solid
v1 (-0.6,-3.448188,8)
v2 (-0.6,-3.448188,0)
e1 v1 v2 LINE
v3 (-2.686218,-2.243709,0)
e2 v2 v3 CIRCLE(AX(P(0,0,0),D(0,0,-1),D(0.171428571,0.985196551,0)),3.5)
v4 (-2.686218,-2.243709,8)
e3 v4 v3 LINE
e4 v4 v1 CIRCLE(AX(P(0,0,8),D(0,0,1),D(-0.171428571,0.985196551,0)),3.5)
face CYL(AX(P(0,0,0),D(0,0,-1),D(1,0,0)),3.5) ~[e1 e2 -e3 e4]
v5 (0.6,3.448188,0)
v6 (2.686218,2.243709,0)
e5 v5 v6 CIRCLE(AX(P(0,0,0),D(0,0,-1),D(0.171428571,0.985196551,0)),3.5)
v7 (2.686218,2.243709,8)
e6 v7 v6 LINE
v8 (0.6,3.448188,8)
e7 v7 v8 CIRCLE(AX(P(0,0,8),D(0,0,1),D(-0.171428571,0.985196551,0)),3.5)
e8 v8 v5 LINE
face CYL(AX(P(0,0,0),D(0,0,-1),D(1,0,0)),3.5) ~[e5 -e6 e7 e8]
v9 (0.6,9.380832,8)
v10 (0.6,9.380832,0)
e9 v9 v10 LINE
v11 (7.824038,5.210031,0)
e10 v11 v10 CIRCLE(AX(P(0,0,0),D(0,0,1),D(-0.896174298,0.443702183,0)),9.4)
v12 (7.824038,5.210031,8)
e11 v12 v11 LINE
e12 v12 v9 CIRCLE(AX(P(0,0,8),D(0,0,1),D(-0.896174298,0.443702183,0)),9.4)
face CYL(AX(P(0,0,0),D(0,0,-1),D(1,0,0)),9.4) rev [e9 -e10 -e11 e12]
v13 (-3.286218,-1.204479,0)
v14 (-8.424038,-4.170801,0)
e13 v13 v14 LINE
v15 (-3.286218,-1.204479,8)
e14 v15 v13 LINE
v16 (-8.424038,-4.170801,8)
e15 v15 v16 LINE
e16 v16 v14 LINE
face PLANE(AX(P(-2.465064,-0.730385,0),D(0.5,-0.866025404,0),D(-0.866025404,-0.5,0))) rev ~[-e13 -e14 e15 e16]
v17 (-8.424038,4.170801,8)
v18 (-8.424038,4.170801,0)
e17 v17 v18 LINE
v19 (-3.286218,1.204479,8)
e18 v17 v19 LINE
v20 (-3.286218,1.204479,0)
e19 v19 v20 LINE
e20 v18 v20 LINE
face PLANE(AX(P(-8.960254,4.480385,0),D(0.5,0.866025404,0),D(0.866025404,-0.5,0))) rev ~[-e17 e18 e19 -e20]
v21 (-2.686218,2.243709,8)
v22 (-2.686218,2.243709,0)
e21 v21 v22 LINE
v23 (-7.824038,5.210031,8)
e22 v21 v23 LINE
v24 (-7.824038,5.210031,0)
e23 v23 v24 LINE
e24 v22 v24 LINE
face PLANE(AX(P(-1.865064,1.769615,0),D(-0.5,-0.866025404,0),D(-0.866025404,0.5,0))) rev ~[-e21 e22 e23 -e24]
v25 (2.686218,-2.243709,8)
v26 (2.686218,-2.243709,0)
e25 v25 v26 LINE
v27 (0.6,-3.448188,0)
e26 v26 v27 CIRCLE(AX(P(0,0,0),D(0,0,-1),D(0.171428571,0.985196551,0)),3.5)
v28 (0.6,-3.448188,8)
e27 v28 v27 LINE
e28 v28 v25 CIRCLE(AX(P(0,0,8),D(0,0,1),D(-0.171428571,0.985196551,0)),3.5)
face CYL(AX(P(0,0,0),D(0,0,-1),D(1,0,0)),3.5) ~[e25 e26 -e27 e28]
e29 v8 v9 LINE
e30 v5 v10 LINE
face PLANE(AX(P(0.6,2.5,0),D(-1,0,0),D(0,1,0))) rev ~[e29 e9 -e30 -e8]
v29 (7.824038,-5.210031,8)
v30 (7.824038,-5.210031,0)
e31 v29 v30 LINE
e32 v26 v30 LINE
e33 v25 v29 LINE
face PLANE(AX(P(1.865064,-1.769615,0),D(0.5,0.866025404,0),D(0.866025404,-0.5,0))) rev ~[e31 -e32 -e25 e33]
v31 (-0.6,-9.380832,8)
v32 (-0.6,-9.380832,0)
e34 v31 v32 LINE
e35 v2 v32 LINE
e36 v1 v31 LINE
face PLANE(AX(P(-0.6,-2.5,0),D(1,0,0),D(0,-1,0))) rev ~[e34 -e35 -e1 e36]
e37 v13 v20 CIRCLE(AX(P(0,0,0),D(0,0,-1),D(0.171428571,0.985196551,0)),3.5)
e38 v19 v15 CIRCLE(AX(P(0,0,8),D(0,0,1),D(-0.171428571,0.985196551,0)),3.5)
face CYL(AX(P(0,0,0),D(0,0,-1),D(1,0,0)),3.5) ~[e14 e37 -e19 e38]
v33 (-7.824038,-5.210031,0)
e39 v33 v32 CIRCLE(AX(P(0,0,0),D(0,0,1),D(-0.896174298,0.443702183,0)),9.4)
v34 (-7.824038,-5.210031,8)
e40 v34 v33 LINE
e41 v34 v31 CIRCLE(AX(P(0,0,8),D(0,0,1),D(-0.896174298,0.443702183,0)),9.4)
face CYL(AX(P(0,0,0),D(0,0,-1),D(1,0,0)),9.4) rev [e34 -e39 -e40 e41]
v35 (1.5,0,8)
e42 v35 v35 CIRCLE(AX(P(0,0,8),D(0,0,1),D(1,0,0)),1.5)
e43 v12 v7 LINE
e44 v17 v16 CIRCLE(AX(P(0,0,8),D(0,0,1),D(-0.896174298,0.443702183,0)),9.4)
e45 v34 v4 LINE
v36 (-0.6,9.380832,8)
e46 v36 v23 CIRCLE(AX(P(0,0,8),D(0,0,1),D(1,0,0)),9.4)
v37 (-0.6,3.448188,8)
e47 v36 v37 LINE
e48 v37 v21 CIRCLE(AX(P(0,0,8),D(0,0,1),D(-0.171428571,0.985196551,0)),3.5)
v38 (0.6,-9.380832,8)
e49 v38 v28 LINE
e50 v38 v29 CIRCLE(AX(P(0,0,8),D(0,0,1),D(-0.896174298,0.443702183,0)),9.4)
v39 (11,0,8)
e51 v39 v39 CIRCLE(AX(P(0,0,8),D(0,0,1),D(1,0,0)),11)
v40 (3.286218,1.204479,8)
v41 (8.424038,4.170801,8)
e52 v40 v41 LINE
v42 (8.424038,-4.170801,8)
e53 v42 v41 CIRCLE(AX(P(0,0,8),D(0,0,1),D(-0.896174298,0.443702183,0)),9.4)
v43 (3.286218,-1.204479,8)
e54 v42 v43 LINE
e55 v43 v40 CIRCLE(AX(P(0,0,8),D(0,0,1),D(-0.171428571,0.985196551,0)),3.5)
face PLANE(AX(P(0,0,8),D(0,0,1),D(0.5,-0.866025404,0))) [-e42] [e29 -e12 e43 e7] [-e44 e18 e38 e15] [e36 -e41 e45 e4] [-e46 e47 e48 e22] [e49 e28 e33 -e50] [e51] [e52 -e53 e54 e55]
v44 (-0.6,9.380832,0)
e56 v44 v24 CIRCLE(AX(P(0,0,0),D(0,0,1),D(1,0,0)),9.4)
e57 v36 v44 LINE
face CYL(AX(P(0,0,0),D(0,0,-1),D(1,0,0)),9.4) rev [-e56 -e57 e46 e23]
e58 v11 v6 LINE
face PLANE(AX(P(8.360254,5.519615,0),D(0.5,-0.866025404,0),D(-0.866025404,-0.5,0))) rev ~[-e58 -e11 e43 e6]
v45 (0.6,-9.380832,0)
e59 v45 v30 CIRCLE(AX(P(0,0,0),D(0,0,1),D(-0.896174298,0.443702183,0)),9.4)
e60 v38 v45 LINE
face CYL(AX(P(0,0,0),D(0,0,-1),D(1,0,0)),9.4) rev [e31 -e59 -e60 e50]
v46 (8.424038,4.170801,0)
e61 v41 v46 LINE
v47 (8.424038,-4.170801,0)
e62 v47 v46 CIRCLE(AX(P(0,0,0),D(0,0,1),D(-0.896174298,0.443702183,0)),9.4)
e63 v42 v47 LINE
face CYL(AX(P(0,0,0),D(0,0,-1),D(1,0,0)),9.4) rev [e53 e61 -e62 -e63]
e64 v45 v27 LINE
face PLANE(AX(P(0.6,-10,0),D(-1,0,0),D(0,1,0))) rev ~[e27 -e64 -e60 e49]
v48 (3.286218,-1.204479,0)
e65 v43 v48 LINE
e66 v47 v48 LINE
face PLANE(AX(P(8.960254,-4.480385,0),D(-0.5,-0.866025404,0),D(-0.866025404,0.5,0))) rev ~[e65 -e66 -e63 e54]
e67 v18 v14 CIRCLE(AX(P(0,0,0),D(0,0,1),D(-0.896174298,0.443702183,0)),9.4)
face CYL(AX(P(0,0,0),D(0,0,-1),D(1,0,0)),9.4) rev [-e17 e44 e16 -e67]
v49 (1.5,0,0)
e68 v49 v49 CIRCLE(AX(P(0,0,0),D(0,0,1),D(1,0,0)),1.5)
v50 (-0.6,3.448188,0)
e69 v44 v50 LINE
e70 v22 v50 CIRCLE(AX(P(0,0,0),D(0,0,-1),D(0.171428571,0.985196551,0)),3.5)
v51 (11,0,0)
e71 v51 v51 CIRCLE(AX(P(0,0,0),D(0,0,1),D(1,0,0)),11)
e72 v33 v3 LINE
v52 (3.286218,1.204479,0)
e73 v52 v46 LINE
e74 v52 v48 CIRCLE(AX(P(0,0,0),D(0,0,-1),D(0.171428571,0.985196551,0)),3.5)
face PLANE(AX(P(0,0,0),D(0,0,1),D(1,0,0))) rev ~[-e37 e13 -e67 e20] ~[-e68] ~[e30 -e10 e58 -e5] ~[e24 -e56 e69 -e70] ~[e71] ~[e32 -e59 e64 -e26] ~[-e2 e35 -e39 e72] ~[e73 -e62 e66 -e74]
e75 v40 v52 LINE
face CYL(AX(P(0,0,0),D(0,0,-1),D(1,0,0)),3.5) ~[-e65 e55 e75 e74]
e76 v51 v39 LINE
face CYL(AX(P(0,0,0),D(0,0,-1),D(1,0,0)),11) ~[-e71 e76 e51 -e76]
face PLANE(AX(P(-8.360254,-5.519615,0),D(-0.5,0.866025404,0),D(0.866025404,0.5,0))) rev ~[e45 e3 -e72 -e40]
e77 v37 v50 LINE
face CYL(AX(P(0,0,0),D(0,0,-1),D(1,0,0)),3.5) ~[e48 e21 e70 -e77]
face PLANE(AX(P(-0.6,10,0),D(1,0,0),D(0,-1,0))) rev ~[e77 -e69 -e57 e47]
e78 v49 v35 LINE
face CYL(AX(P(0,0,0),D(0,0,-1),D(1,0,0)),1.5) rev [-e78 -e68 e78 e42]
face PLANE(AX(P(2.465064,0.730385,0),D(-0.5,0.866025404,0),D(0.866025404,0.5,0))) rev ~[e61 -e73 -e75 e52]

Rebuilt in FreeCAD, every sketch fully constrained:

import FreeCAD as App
import Part
import Sketcher

V = App.Vector
Q = App.Units.Quantity


def add_polygon(sketch, points):
    """Adds a closed chain of lines whose ends are joined by coincident constraints."""
    first, n = sketch.GeometryCount, len(points)
    for a, b in zip(points, points[1:] + points[:1]):
        sketch.addGeometry(Part.LineSegment(App.Vector(*a, 0), App.Vector(*b, 0)), False)
    for i in range(n):
        sketch.addConstraint(Sketcher.Constraint("Coincident", first + i, 2, first + (i + 1) % n, 1))

doc = App.newDocument("Part")
body = doc.addObject("PartDesign::Body", "Body")
body.AllowCompound = True

# Sketch on XY plane
sketch1 = doc.addObject("Sketcher::SketchObject", "Sketch")
body.addObject(sketch1)
sketch1.AttachmentSupport = (doc.XY_Plane, [""])
sketch1.MapMode = "FlatFace"
sketch1.addGeometry([
    Part.Circle(V(0, 0, 0), V(0, 0, 1), 3.5),
    Part.Circle(V(0, 0, 0), V(0, 0, 1), 1.5),
    Part.Circle(V(0, 0, 0), V(0, 0, 1), 11),
    Part.Circle(V(0, 0, 0), V(0, 0, 1), 9.4),
], False)
sketch1.addConstraint([
    Sketcher.Constraint("Coincident", 0, 3, -1, 1),
    Sketcher.Constraint("Coincident", 1, 3, -1, 1),
    Sketcher.Constraint("Coincident", 2, 3, -1, 1),
    Sketcher.Constraint("Coincident", 3, 3, -1, 1),
    Sketcher.Constraint("Diameter", 0, Q("7 mm")),
    Sketcher.Constraint("Diameter", 1, Q("3 mm")),
    Sketcher.Constraint("Diameter", 2, Q("22 mm")),
    Sketcher.Constraint("Diameter", 3, Q("18.8 mm")),
])
pad1 = doc.addObject("PartDesign::Pad", "Pad")
body.addObject(pad1)
pad1.Profile = sketch1
pad1.Length = 8

# Sketch on XY plane
sketch2 = doc.addObject("Sketcher::SketchObject", "Sketch001")
body.addObject(sketch2)
sketch2.AttachmentSupport = (doc.XY_Plane, [""])
sketch2.MapMode = "FlatFace"
add_polygon(sketch2, [(-0.6, 10), (-0.6, 2.5), (0.6, 2.5), (0.6, 10)])  # lines 0-3
sketch2.addConstraint([
    Sketcher.Constraint("Vertical", 0),
    Sketcher.Constraint("Horizontal", 1),
    Sketcher.Constraint("Vertical", 2),
    Sketcher.Constraint("Horizontal", 3),
    Sketcher.Constraint("DistanceX", 1, 1, 1, 2, Q("1.2 mm")),
    Sketcher.Constraint("DistanceY", -1, 1, 2, 2, Q("10 mm")),
    Sketcher.Constraint("DistanceY", -1, 1, 0, 2, Q("2.5 mm")),
    Sketcher.Constraint("DistanceX", 0, 2, -1, 1, Q("0.6 mm")),
])
pad2 = doc.addObject("PartDesign::Pad", "Pad001")
body.addObject(pad2)
pad2.Profile = sketch2
pad2.Length = 8
doc.recompute()

polarpattern = doc.addObject("PartDesign::PolarPattern", "PolarPattern")
body.addObject(polarpattern)
polarpattern.Originals = [pad2]
polarpattern.Axis = (doc.Z_Axis, [""])
polarpattern.Angle = 360
polarpattern.Occurrences = 6
body.Tip = polarpattern

doc.recompute()
